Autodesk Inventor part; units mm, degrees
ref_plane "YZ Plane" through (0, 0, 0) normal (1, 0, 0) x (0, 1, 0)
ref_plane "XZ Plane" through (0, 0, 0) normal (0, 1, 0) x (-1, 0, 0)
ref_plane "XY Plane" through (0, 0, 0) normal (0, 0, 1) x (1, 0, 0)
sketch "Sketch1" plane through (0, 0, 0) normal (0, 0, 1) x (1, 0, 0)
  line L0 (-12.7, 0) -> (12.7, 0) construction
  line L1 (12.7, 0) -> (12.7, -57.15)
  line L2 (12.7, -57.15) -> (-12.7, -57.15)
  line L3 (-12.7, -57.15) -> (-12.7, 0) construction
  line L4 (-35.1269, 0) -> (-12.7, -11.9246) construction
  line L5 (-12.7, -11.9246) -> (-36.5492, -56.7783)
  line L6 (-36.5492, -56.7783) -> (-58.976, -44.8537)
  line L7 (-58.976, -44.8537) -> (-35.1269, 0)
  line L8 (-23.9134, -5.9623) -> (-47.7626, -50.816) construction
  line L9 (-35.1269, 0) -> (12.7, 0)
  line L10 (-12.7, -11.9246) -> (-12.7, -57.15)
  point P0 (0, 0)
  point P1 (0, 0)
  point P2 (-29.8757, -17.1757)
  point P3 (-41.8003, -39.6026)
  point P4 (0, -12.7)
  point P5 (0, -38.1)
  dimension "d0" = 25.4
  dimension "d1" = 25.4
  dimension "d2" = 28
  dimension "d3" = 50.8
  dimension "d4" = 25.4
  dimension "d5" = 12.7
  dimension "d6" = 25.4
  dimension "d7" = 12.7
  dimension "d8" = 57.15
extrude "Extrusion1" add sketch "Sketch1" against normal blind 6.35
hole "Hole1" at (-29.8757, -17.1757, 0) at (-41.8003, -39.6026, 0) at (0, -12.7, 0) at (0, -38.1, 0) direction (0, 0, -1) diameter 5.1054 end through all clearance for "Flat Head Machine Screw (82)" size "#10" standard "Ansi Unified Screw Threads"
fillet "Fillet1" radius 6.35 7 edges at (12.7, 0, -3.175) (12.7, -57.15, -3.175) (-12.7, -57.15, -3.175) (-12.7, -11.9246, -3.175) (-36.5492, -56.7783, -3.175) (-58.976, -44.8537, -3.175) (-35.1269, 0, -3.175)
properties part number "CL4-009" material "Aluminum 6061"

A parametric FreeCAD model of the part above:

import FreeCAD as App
import Part
import Sketcher

V = App.Vector
Q = App.Units.Quantity


def edges_at(feature, points):
    """Names of the edges that pass closest to the given points."""
    edges = feature.Shape.Edges
    near = lambda p: min(range(len(edges)), key=lambda i: edges[i].distToShape(Part.Vertex(*p))[0])
    return sorted({f"Edge{near(p) + 1}" for p in points})


def add_polygon(sketch, points):
    """Adds a closed chain of lines whose ends are joined by coincident constraints."""
    first, n = sketch.GeometryCount, len(points)
    for a, b in zip(points, points[1:] + points[:1]):
        sketch.addGeometry(Part.LineSegment(App.Vector(*a, 0), App.Vector(*b, 0)), False)
    for i in range(n):
        sketch.addConstraint(Sketcher.Constraint("Coincident", first + i, 2, first + (i + 1) % n, 1))

doc = App.newDocument("Part")
params = doc.addObject("Spreadsheet::Sheet", "Params")
for row, (alias, value) in enumerate([
    ("sketch1_width", "1 in"),
    ("sketch1_length", "2 in"),
    ("sketch1_length2", "1 in"),
    ("sketch1_height", "2.25 in"),
    ("pad1_length", "0.25 in"),
    ("sketch2_diameter", "0.201 in"),
    ("hole_diameter", "0.201 in"),
    ("fillet_radius", "0.25 in"),
], start=1):
    params.set(f"A{row}", alias)
    params.set(f"B{row}", "=" + value)
    params.setAlias(f"B{row}", alias)

body = doc.addObject("PartDesign::Body", "Body")

# Sketch on XY plane
sketch1 = doc.addObject("Sketcher::SketchObject", "Sketch")
body.addObject(sketch1)
sketch1.AttachmentSupport = (doc.XY_Plane, [""])
sketch1.MapMode = "FlatFace"
add_polygon(sketch1, [(12.7, -57.15), (12.7, 0), (-35.1269, 0), (-58.976, -44.8537), (-36.5492, -56.7783), (-12.7, -11.9246), (-12.7, -57.15)])  # lines 0-6
sketch1.addConstraint([
    Sketcher.Constraint("Vertical", 0),
    Sketcher.Constraint("Horizontal", 1),
    Sketcher.Constraint("Vertical", 5),
    Sketcher.Constraint("Horizontal", 6),
    Sketcher.Constraint("PointOnObject", 0, 2, -1),
    Sketcher.Constraint("Perpendicular", 2, 3),
    Sketcher.Constraint("Perpendicular", 3, 4),
    Sketcher.Constraint("Equal", 2, 4),
    Sketcher.Constraint("DistanceX", 6, 1, 6, 2, Q("1 in")),
    Sketcher.Constraint("Distance", 2, Q("2 in")),
    Sketcher.Constraint("Distance", 3, Q("1 in")),
    Sketcher.Constraint("Angle", 3, Q("-28 deg")),
    Sketcher.Constraint("DistanceY", 0, 1, 0, 2, Q("2.25 in")),
    Sketcher.Constraint("DistanceX", -1, 1, 0, 2, Q("0.5 in")),
])
sketch1.setExpression("Constraints[15]", "Params.sketch1_width")
sketch1.setExpression("Constraints[16]", "Params.sketch1_length")
sketch1.setExpression("Constraints[17]", "Params.sketch1_length2")
sketch1.setExpression("Constraints[19]", "Params.sketch1_height")
pad1 = doc.addObject("PartDesign::Pad", "Pad")
body.addObject(pad1)
pad1.Profile = sketch1
pad1.setExpression("Length", "Params.pad1_length")
pad1.Reversed = True

# Sketch on XY plane
sketch2 = doc.addObject("Sketcher::SketchObject", "Sketch001")
body.addObject(sketch2)
sketch2.AttachmentSupport = (doc.XY_Plane, [""])
sketch2.MapMode = "FlatFace"
sketch2.addGeometry([
    Part.Circle(V(-29.8757, -17.1757, 0), V(0, 0, 1), 2.5527),
    Part.Circle(V(-41.8003, -39.6026, 0), V(0, 0, 1), 2.5527),
    Part.Circle(V(0, -12.7, 0), V(0, 0, 1), 2.5527),
    Part.Circle(V(0, -38.1, 0), V(0, 0, 1), 2.5527),
], False)
sketch2.addConstraint([
    Sketcher.Constraint("Equal", 0, 1),
    Sketcher.Constraint("Equal", 1, 2),
    Sketcher.Constraint("Equal", 2, 3),
    Sketcher.Constraint("PointOnObject", 2, 3, -2),
    Sketcher.Constraint("PointOnObject", 3, 3, -2),
    Sketcher.Constraint("Diameter", 0, Q("0.201 in")),
    Sketcher.Constraint("DistanceY", 3, 3, 2, 3, Q("1 in")),
    Sketcher.Constraint("DistanceY", 2, 3, -1, 1, Q("0.5 in")),
    Sketcher.Constraint("DistanceX", 0, 3, -1, 1, Q("1.1762 in")),
    Sketcher.Constraint("DistanceY", 0, 3, -1, 1, Q("0.6762 in")),
    Sketcher.Constraint("DistanceX", 1, 3, -1, 1, 41.8003),
    Sketcher.Constraint("DistanceY", 1, 3, -1, 1, 39.6026),
])
sketch2.setExpression("Constraints[5]", "Params.sketch2_diameter")
doc.recompute()
hole = doc.addObject("PartDesign::Hole", "Hole")
body.addObject(hole)
hole.Profile = sketch2
hole.ThreadType = "None"
hole.setExpression("Diameter", "Params.hole_diameter")
hole.DepthType = "ThroughAll"
doc.recompute()

fillet = doc.addObject("PartDesign::Fillet", "Fillet")
body.addObject(fillet)
fillet.Base = (hole, edges_at(hole, [
    (12.7, 0, -3.175),
    (12.7, -57.15, -3.175),
    (-12.7, -57.15, -3.175),
    (-12.7, -11.925, -3.175),
    (-36.549, -56.778, -3.175),
    (-58.976, -44.854, -3.175),
    (-35.127, 0, -3.175),
]))
fillet.setExpression("Radius", "Params.fillet_radius")

doc.recompute()
